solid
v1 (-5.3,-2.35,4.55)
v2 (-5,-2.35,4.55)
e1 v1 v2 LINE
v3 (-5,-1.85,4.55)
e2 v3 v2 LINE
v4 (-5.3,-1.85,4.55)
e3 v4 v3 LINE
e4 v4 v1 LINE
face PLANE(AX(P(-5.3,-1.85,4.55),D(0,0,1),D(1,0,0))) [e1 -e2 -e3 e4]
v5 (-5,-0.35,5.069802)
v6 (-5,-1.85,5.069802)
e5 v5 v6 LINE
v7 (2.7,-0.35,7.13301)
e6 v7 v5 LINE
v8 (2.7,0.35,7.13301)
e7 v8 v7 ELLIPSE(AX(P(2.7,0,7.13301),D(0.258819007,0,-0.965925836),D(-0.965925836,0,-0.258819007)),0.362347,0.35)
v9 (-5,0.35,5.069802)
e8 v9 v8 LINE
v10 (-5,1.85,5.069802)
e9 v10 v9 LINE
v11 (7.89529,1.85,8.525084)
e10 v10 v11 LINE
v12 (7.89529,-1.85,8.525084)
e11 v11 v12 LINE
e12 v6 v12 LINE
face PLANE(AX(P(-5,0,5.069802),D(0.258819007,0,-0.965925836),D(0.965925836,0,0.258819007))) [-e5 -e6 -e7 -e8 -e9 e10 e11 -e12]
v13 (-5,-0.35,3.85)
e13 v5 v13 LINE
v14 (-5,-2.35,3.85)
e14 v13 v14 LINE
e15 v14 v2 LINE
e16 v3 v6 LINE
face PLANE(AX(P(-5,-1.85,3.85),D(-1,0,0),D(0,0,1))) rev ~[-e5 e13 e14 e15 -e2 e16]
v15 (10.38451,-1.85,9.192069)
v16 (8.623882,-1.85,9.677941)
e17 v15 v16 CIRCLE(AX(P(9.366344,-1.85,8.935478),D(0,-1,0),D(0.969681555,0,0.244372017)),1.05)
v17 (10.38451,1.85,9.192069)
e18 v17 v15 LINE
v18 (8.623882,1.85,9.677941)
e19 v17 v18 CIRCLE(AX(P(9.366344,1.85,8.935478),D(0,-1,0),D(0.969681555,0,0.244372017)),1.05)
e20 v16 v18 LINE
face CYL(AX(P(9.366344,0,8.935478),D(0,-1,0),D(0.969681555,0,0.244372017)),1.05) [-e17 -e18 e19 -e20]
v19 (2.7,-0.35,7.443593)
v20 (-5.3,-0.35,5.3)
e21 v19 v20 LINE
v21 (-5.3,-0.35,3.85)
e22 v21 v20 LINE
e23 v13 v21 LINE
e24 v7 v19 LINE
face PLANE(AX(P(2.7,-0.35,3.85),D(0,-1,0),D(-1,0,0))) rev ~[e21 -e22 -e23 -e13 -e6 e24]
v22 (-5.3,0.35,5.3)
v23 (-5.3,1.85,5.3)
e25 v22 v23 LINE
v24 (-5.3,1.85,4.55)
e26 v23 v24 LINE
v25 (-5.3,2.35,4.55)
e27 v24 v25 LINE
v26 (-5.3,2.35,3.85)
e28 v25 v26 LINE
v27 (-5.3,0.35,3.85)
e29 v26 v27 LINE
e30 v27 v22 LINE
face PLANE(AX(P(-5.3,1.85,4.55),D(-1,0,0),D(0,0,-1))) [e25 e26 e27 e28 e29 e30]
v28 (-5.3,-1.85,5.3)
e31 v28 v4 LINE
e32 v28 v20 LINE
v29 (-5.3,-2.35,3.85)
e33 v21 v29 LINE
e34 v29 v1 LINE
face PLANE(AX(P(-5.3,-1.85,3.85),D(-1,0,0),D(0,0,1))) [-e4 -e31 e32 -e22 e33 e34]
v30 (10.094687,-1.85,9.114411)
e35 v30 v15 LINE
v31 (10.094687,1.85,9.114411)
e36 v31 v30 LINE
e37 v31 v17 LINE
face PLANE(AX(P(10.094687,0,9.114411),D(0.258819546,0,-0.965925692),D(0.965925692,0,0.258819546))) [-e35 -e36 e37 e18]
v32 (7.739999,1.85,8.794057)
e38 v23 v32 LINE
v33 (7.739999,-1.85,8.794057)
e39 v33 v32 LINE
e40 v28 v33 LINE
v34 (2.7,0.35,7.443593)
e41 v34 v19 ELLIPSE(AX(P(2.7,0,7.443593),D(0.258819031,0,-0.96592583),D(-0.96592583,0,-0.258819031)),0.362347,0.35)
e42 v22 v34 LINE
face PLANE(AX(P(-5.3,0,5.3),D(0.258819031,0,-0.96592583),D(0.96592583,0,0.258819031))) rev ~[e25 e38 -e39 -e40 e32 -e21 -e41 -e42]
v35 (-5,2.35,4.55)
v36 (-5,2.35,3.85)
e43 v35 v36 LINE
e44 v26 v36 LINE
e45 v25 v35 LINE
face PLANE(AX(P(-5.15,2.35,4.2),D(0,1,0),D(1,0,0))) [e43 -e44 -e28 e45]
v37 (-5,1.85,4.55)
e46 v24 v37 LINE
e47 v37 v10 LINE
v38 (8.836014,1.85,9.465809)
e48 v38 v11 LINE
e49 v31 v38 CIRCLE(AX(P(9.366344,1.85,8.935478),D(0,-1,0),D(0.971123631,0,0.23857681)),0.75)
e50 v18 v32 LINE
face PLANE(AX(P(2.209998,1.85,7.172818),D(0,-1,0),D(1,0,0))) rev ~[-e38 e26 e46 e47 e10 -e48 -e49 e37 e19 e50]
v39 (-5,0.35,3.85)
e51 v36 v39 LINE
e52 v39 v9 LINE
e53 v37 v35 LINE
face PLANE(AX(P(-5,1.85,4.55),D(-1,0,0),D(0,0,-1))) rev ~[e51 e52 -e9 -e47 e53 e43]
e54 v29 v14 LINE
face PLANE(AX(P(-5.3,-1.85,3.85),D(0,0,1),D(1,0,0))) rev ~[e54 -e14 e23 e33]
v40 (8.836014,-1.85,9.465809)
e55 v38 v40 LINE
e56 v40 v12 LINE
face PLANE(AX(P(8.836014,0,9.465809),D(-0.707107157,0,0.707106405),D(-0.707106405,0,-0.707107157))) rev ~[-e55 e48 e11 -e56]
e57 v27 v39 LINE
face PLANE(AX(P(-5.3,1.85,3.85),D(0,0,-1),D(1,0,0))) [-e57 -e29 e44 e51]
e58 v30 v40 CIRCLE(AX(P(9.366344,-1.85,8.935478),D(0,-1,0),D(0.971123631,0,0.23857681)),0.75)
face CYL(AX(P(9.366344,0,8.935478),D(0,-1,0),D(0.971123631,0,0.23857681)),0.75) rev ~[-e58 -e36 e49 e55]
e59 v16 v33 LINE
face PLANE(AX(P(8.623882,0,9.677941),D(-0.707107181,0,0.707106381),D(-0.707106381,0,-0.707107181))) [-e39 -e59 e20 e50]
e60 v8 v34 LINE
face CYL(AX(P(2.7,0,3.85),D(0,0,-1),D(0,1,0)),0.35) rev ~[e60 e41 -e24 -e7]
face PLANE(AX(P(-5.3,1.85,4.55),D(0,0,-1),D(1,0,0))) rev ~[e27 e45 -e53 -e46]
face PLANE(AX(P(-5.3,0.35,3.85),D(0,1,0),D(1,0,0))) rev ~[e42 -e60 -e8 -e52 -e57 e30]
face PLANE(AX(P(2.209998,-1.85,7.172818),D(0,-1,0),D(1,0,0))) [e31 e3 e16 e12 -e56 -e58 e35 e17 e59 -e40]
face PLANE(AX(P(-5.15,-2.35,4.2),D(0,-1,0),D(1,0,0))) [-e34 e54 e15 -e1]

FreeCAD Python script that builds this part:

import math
import FreeCAD as App
import Part
import Sketcher
from FreeCAD import Vector
Q = App.Units.Quantity


def add_polygon(sketch, points):
    """Adds a closed chain of lines whose ends are joined by coincident constraints."""
    first, n = sketch.GeometryCount, len(points)
    for a, b in zip(points, points[1:] + points[:1]):
        sketch.addGeometry(Part.LineSegment(App.Vector(*a, 0), App.Vector(*b, 0)), False)
    for i in range(n):
        sketch.addConstraint(Sketcher.Constraint("Coincident", first + i, 2, first + (i + 1) % n, 1))

doc = App.newDocument("Part")
params = doc.addObject("Spreadsheet::Sheet", "Params")
for row, (alias, value) in enumerate([
    ("sketch1_radius", "0.75 mm"),
    ("sketch1_radius2", "1.05 mm"),
    ("sketch1_width", "0.3 mm"),
    ("sketch1_length", "13.5 mm"),
    ("sketch1_height", "1.45 mm"),
    ("pad1_length", "3.7 mm"),
    ("sketch2_width", "8 mm"),
    ("sketch2_radius", "0.35 mm"),
    ("sketch3_width", "0.3 mm"),
    ("sketch3_height", "0.7 mm"),
    ("pad2_length", "0.5 mm"),
    ("sketch4_width", "0.3 mm"),
    ("sketch4_height", "0.7 mm"),
    ("pad3_length", "0.5 mm"),
], start=1):
    params.set(f"A{row}", alias)
    params.set(f"B{row}", "=" + value)
    params.setAlias(f"B{row}", alias)

body = doc.addObject("PartDesign::Body", "Body")

# Sketch on XZ plane
sketch1 = body.newObject("Sketcher::SketchObject", "Sketch")
sketch1.AttachmentSupport = (doc.getObject("XZ_Plane"), [""])
sketch1.MapMode = "FlatFace"
sketch1.addGeometry([
    Part.LineSegment(Vector(-5.3, 5.3, 0), Vector(-5.3, 3.85, 0)),  # 0
    Part.LineSegment(Vector(-5.3, 3.85, 0), Vector(-5, 3.85, 0)),  # 1
    Part.LineSegment(Vector(-5, 3.85, 0), Vector(-5, 5.07, 0)),  # 2
    Part.LineSegment(Vector(-5, 5.07, 0), Vector(7.9, 8.53, 0)),  # 3
    Part.LineSegment(Vector(7.9, 8.53, 0), Vector(8.84, 9.47, 0)),  # 4
    Part.ArcOfCircle(Part.Circle(Vector(9.37, 8.94, 0), Vector(0, 0, 1), 0.75), math.radians(14), math.radians(135)),  # 5
    Part.LineSegment(Vector(10.09, 9.11, 0), Vector(10.38, 9.19, 0)),  # 6
    Part.ArcOfCircle(Part.Circle(Vector(9.37, 8.94, 0), Vector(0, 0, 1), 1.05), math.radians(14), math.radians(135)),  # 7
    Part.LineSegment(Vector(8.62, 9.68, 0), Vector(7.74, 8.79, 0)),  # 8
    Part.LineSegment(Vector(7.74, 8.79, 0), Vector(-5.3, 5.3, 0)),  # 9
], False)
sketch1.addConstraint([
    Sketcher.Constraint("Coincident", 0, 2, 1, 1),
    Sketcher.Constraint("Coincident", 1, 2, 2, 1),
    Sketcher.Constraint("Coincident", 2, 2, 3, 1),
    Sketcher.Constraint("Coincident", 3, 2, 4, 1),
    Sketcher.Constraint("Tangent", 4, 2, 5, 2),
    Sketcher.Constraint("Coincident", 5, 1, 6, 1),
    Sketcher.Constraint("Coincident", 6, 2, 7, 1),
    Sketcher.Constraint("Tangent", 7, 2, 8, 1),
    Sketcher.Constraint("Coincident", 8, 2, 9, 1),
    Sketcher.Constraint("Coincident", 9, 2, 0, 1),
    Sketcher.Constraint("Vertical", 0),
    Sketcher.Constraint("Horizontal", 1),
    Sketcher.Constraint("Vertical", 2),
    Sketcher.Constraint("Coincident", 7, 3, 5, 3),
    Sketcher.Constraint("Parallel", 3, 6),
    Sketcher.Constraint("Parallel", 4, 8),
    Sketcher.Constraint("Parallel", 6, 9),
    Sketcher.Constraint("Angle", 3, Q("14.999998 deg")),
    Sketcher.Constraint("Radius", 5, 0.75),
    Sketcher.Constraint("Radius", 7, 1.05),
    Sketcher.Constraint("DistanceX", 1, 1, 1, 2, 0.3),
    Sketcher.Constraint("DistanceX", 1, 2, -1, 1, 5.0),
    Sketcher.Constraint("Distance", 9, 13.5),
    Sketcher.Constraint("DistanceY", 0, 2, 0, 1, 1.45),
    Sketcher.Constraint("DistanceY", -1, 1, 9, 2, 5.3),
    Sketcher.Constraint("Distance", 8, 1.25),
    Sketcher.Constraint("DistanceY", 2, 1, 2, 2, 1.219802),
    Sketcher.Constraint("DistanceY", -1, 1, 5, 3, 8.935478),
    Sketcher.Constraint("DistanceY", -1, 1, 5, 1, 9.114411),
])
sketch1.setExpression("Constraints[18]", "Params.sketch1_radius")
sketch1.setExpression("Constraints[19]", "Params.sketch1_radius2")
sketch1.setExpression("Constraints[20]", "Params.sketch1_width")
sketch1.setExpression("Constraints[22]", "Params.sketch1_length")
sketch1.setExpression("Constraints[23]", "Params.sketch1_height")
pad1 = body.newObject("PartDesign::Pad", "Pad")
pad1.Profile = sketch1
pad1.setExpression("Length", "Params.pad1_length")
pad1.Midplane = True

# Sketch on XY plane
sketch2 = body.newObject("Sketcher::SketchObject", "Sketch001")
sketch2.AttachmentSupport = (doc.getObject("XY_Plane"), [""])
sketch2.MapMode = "FlatFace"
sketch2.AttachmentOffset = App.Placement(Vector(0, 0, 3.85), App.Rotation())
sketch2.addGeometry([
    Part.ArcOfCircle(Part.Circle(Vector(-5.3, 0, 0), Vector(0, 0, 1), 0.35), math.radians(90), math.radians(270)),
    Part.LineSegment(Vector(-5.3, 0.35, 0), Vector(2.7, 0.35, 0)),
    Part.ArcOfCircle(Part.Circle(Vector(2.7, 0, 0), Vector(0, 0, 1), 0.35), math.radians(-90), math.radians(90)),
    Part.LineSegment(Vector(2.7, -0.35, 0), Vector(-5.3, -0.35, 0)),
], False)
sketch2.addConstraint([
    Sketcher.Constraint("Tangent", 0, 1, 1, 1),
    Sketcher.Constraint("Tangent", 1, 2, 2, 2),
    Sketcher.Constraint("Tangent", 2, 1, 3, 1),
    Sketcher.Constraint("Tangent", 3, 2, 0, 2),
    Sketcher.Constraint("Horizontal", 1),
    Sketcher.Constraint("Horizontal", 3),
    Sketcher.Constraint("PointOnObject", 0, 3, -1),
    Sketcher.Constraint("DistanceX", 1, 1, 1, 2, 8.0),
    Sketcher.Constraint("Radius", 0, 0.35),
    Sketcher.Constraint("DistanceX", 0, 3, -1, 1, 5.3),
])
sketch2.setExpression("Constraints[7]", "Params.sketch2_width")
sketch2.setExpression("Constraints[8]", "Params.sketch2_radius")
pocket1 = body.newObject("PartDesign::Pocket", "Pocket")
pocket1.Profile = sketch2
pocket1.Type = "ThroughAll"
pocket1.Reversed = True

# Sketch on XZ plane
sketch3 = body.newObject("Sketcher::SketchObject", "Sketch002")
sketch3.AttachmentSupport = (doc.getObject("XZ_Plane"), [""])
sketch3.MapMode = "FlatFace"
sketch3.AttachmentOffset = App.Placement(Vector(0, 0, 1.85), App.Rotation())
add_polygon(sketch3, [(-5.3, 4.55), (-5.3, 3.85), (-5, 3.85), (-5, 4.55)])  # lines 0-3
sketch3.addConstraint([
    Sketcher.Constraint("Vertical", 0),
    Sketcher.Constraint("Horizontal", 1),
    Sketcher.Constraint("Vertical", 2),
    Sketcher.Constraint("Horizontal", 3),
    Sketcher.Constraint("DistanceX", 1, 1, 1, 2, 0.3),
    Sketcher.Constraint("DistanceY", 0, 2, 0, 1, 0.7),
    Sketcher.Constraint("DistanceX", 1, 2, -1, 1, 5.0),
    Sketcher.Constraint("DistanceY", -1, 1, 0, 2, 3.85),
])
sketch3.setExpression("Constraints[8]", "Params.sketch3_width")
sketch3.setExpression("Constraints[9]", "Params.sketch3_height")
pad2 = body.newObject("PartDesign::Pad", "Pad001")
pad2.Profile = sketch3
pad2.setExpression("Length", "Params.pad2_length")

# Sketch on XZ plane
sketch4 = body.newObject("Sketcher::SketchObject", "Sketch003")
sketch4.AttachmentSupport = (doc.getObject("XZ_Plane"), [""])
sketch4.MapMode = "FlatFace"
sketch4.AttachmentOffset = App.Placement(Vector(0, 0, -1.85), App.Rotation())
add_polygon(sketch4, [(-5.3, 3.85), (-5.3, 4.55), (-5, 4.55), (-5, 3.85)])  # lines 0-3
sketch4.addConstraint([
    Sketcher.Constraint("Vertical", 0),
    Sketcher.Constraint("Horizontal", 1),
    Sketcher.Constraint("Vertical", 2),
    Sketcher.Constraint("Horizontal", 3),
    Sketcher.Constraint("DistanceX", 1, 1, 1, 2, 0.3),
    Sketcher.Constraint("DistanceY", 0, 1, 0, 2, 0.7),
    Sketcher.Constraint("DistanceX", 1, 2, -1, 1, 5.0),
    Sketcher.Constraint("DistanceY", -1, 1, 0, 2, 4.55),
])
sketch4.setExpression("Constraints[8]", "Params.sketch4_width")
sketch4.setExpression("Constraints[9]", "Params.sketch4_height")
pad3 = body.newObject("PartDesign::Pad", "Pad002")
pad3.Profile = sketch4
pad3.setExpression("Length", "Params.pad3_length")
pad3.Reversed = True

doc.recompute()
